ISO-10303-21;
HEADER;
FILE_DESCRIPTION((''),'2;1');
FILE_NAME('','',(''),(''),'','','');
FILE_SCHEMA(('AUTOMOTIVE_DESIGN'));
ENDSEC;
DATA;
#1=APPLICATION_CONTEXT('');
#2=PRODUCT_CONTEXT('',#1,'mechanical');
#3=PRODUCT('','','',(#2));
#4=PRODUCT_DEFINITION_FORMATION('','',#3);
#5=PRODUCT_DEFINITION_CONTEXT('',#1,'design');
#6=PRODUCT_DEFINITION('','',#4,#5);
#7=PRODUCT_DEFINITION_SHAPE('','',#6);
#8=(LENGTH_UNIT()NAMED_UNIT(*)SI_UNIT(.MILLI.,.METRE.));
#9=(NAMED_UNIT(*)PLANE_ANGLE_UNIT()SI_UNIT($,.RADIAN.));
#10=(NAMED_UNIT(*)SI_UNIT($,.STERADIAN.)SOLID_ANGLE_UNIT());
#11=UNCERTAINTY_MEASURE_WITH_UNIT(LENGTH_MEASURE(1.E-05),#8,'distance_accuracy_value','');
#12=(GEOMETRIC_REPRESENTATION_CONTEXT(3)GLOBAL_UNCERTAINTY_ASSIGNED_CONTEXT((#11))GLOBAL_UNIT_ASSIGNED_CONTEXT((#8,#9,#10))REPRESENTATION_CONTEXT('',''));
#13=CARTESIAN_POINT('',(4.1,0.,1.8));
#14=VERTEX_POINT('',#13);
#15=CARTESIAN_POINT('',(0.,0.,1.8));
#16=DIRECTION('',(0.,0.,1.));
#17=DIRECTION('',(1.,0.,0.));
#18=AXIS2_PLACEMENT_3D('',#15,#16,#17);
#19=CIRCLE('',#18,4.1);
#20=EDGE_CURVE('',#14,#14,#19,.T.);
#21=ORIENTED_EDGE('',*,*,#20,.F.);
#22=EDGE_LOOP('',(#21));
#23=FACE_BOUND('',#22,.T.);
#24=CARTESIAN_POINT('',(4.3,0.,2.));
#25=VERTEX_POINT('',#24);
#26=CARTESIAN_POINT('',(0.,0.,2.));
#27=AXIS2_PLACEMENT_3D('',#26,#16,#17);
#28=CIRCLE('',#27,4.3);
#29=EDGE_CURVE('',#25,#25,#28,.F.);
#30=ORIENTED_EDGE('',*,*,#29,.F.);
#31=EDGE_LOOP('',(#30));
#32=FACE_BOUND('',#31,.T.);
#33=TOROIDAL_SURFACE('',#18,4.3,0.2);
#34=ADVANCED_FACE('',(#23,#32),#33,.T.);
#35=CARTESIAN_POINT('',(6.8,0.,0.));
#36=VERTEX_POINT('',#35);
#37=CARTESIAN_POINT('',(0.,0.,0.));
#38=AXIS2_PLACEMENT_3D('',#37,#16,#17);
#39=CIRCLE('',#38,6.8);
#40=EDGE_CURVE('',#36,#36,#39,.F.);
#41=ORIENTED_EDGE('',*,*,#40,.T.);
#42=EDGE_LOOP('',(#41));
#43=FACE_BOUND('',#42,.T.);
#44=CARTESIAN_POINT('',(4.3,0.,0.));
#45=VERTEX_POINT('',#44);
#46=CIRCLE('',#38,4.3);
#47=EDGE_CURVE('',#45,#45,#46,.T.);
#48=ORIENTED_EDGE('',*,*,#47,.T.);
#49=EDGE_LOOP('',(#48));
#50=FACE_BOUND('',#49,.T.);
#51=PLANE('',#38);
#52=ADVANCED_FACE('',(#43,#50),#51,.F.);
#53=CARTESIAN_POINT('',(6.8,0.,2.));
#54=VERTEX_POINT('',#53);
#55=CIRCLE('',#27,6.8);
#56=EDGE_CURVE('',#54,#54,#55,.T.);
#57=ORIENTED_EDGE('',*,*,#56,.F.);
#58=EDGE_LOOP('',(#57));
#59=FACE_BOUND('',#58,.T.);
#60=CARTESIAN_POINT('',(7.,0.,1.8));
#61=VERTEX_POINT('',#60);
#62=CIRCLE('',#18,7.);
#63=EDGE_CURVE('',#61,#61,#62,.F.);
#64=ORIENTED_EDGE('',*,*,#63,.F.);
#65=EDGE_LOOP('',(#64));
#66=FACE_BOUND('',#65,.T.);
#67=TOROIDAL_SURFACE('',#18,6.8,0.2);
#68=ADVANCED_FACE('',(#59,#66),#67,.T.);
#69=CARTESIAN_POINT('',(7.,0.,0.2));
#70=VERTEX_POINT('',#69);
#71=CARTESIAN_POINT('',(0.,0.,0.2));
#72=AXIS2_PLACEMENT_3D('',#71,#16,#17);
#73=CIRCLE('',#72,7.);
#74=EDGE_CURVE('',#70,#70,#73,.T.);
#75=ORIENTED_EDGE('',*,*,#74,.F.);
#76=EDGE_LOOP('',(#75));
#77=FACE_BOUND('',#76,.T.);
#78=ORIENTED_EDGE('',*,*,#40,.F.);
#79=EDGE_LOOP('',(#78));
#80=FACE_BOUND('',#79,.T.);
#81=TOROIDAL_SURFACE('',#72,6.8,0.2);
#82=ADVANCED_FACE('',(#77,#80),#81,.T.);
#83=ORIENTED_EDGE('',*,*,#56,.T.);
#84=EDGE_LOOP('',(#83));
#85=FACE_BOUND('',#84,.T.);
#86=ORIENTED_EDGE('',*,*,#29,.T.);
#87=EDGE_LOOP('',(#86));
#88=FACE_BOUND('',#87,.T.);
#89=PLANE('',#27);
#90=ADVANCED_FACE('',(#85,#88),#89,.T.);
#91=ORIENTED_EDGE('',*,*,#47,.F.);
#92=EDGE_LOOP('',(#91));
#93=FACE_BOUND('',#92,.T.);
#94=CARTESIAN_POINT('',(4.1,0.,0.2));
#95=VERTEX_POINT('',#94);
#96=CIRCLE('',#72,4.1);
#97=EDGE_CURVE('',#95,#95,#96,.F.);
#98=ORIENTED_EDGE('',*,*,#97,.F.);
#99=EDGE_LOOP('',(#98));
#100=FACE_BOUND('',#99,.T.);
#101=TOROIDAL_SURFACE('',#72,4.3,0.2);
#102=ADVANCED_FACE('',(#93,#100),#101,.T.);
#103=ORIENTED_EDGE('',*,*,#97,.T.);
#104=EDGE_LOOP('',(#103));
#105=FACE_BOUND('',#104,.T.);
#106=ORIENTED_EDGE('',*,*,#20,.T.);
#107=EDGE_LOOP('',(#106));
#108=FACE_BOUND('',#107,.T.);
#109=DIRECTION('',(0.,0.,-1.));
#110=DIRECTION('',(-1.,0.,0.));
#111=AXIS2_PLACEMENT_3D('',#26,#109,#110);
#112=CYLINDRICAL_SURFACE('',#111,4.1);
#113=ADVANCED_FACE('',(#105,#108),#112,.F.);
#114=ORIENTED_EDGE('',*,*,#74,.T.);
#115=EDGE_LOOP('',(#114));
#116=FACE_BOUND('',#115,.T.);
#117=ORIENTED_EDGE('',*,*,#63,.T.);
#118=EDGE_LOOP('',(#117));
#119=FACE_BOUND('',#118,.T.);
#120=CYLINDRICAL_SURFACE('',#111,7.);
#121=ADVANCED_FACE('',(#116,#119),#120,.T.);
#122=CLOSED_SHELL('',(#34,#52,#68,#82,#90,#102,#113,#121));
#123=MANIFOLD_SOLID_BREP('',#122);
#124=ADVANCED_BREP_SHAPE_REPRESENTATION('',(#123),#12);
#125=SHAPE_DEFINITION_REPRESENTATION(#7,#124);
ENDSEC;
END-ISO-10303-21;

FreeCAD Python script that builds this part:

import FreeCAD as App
import Part
import Sketcher


def edges_at(feature, points):
    """Names of the edges that pass closest to the given points."""
    edges = feature.Shape.Edges
    near = lambda p: min(range(len(edges)), key=lambda i: edges[i].distToShape(Part.Vertex(*p))[0])
    return sorted({f"Edge{near(p) + 1}" for p in points})

doc = App.newDocument("Part")
params = doc.addObject("Spreadsheet::Sheet", "Params")
for row, (alias, value) in enumerate([
    ("sketch1_diameter", "14 mm"),
    ("sketch1_diameter2", "8.2 mm"),
    ("pad1_length", "2 mm"),
    ("fillet_radius", "0.2 mm"),
], start=1):
    params.set(f"A{row}", alias)
    params.set(f"B{row}", "=" + value)
    params.setAlias(f"B{row}", alias)

body = doc.addObject("PartDesign::Body", "Body")

# Sketch on XY plane
sketch1 = body.newObject("Sketcher::SketchObject", "Sketch")
sketch1.AttachmentSupport = (doc.getObject("XY_Plane"), [""])
sketch1.MapMode = "FlatFace"
sketch1.addGeometry([
    Part.Circle(App.Vector(0, 0, 0), App.Vector(0, 0, 1), 7),
    Part.Circle(App.Vector(0, 0, 0), App.Vector(0, 0, 1), 4.1),
], False)
sketch1.addConstraint([
    Sketcher.Constraint("Coincident", 0, 3, -1, 1),
    Sketcher.Constraint("Coincident", 1, 3, -1, 1),
    Sketcher.Constraint("Diameter", 0, 14.0),
    Sketcher.Constraint("Diameter", 1, 8.2),
])
sketch1.setExpression("Constraints[2]", "Params.sketch1_diameter")
sketch1.setExpression("Constraints[3]", "Params.sketch1_diameter2")
pad1 = body.newObject("PartDesign::Pad", "Pad")
pad1.Profile = sketch1
pad1.setExpression("Length", "Params.pad1_length")
doc.recompute()

fillet = body.newObject("PartDesign::Fillet", "Fillet")
fillet.Base = (pad1, edges_at(pad1, [
    (-7, 0, 0),
    (-7, 0, 2),
    (-4.1, 0, 0),
    (-4.1, 0, 2),
]))
fillet.setExpression("Radius", "Params.fillet_radius")

doc.recompute()
